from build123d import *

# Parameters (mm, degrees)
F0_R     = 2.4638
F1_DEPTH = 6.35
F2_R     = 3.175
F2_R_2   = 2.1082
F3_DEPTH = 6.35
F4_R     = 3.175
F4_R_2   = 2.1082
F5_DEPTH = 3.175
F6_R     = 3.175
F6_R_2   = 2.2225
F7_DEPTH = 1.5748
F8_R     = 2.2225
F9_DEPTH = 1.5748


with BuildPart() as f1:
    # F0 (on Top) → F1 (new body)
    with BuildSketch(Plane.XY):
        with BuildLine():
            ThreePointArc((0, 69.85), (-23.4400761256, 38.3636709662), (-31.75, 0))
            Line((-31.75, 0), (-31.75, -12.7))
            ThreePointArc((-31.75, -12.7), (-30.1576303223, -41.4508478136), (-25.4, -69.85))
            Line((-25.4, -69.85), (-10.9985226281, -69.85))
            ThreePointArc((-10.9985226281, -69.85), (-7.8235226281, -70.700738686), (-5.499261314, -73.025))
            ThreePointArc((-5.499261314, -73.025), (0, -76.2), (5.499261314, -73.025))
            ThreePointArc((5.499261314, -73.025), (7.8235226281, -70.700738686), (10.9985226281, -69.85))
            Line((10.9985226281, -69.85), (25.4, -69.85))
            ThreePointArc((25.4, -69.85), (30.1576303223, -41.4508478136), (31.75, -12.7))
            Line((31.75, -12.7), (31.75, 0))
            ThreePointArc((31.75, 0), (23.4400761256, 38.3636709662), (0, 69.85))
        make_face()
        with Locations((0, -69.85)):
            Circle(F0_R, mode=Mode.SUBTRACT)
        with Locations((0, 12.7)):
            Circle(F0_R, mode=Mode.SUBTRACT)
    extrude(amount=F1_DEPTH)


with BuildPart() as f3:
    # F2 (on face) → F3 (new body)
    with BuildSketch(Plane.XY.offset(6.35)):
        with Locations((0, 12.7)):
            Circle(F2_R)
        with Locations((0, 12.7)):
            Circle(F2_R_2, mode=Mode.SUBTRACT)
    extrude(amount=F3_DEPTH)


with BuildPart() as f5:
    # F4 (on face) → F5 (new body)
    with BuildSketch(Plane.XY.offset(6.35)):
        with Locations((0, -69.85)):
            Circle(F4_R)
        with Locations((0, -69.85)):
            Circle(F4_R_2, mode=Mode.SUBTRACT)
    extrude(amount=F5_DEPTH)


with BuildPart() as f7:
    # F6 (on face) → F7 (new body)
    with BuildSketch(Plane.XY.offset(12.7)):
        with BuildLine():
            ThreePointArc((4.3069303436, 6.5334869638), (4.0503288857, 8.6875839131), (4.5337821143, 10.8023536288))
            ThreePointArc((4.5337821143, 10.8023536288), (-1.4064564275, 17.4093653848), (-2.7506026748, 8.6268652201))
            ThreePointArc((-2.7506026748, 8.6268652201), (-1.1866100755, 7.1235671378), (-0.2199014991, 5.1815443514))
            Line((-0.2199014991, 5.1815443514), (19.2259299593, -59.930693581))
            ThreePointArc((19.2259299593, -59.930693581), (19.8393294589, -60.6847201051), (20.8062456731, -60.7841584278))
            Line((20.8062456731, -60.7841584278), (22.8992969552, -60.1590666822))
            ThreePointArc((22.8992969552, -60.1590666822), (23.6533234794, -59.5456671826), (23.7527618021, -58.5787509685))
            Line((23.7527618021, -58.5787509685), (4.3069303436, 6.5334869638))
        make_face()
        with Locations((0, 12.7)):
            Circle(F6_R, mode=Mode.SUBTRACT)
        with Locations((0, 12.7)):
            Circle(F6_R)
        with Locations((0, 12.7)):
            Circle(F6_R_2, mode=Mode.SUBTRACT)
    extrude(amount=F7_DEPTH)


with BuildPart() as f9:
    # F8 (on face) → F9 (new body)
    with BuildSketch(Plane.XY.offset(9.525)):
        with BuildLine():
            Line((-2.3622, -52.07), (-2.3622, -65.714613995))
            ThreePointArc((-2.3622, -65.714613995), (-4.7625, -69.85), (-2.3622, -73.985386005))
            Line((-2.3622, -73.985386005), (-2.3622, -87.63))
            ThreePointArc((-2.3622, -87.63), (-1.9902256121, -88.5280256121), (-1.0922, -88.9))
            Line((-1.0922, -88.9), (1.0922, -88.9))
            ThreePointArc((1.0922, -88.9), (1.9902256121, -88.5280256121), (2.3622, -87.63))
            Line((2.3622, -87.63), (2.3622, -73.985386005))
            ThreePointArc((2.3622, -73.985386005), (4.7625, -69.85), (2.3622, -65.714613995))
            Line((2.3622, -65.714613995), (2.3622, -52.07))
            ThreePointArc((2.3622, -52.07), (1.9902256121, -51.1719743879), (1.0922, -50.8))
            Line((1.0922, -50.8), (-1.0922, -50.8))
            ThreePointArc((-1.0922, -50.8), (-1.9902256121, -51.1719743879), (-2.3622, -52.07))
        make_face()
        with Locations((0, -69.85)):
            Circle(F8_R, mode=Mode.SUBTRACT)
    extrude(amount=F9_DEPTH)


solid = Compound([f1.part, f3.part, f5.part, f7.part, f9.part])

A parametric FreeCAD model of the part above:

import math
import FreeCAD as App
import Part
import Sketcher

V = App.Vector
Q = App.Units.Quantity

doc = App.newDocument("Part")
body = doc.addObject("PartDesign::Body", "Body")

sketch1 = body.newObject("Sketcher::SketchObject", "Sketch")
sketch1.AttachmentSupport = (doc.getObject("XY_Plane"), [""])
sketch1.MapMode = "FlatFace"
sketch1.addGeometry([
    Part.ArcOfCircle(Part.Circle(V(61, 0, 0), V(0, 0, 1), 92.7), math.radians(131), math.radians(180)),
    Part.LineSegment(V(-31.8, 0, 0), V(-31.8, -12.7, 0)),
    Part.ArcOfCircle(Part.Circle(V(228.6, -12.7, 0), V(0, 0, 1), 260.3), math.radians(180), math.radians(192.68)),
    Part.LineSegment(V(-25.4, -69.8, 0), V(-11, -69.8, 0)),
    Part.ArcOfCircle(Part.Circle(V(-11, -76.2, 0), V(0, 0, 1), 6.3), math.radians(30), math.radians(90)),
    Part.ArcOfCircle(Part.Circle(V(0, -69.8, 0), V(0, 0, 1), 6.3), math.radians(-150), math.radians(-30)),
    Part.ArcOfCircle(Part.Circle(V(11, -76.2, 0), V(0, 0, 1), 6.3), math.radians(90), math.radians(150)),
    Part.LineSegment(V(11, -69.8, 0), V(25.4, -69.8, 0)),
    Part.ArcOfCircle(Part.Circle(V(-228.6, -12.7, 0), V(0, 0, 1), 260.3), math.radians(-12.68), math.radians(0)),
    Part.LineSegment(V(31.8, -12.7, 0), V(31.8, 0, 0)),
    Part.ArcOfCircle(Part.Circle(V(-61, 0, 0), V(0, 0, 1), 92.7), math.radians(0), math.radians(49)),
    Part.Circle(V(0, -69.8, 0), V(0, 0, 1), 2.5),
    Part.Circle(V(0, 12.7, 0), V(0, 0, 1), 2.5),
], False)
sketch1.addConstraint([
    Sketcher.Constraint("Tangent", 0, 2, 1, 1),
    Sketcher.Constraint("Tangent", 1, 2, 2, 1),
    Sketcher.Constraint("Coincident", 2, 2, 3, 1),
    Sketcher.Constraint("Tangent", 3, 2, 4, 2),
    Sketcher.Constraint("Tangent", 4, 1, 5, 1),
    Sketcher.Constraint("Tangent", 5, 2, 6, 2),
    Sketcher.Constraint("Tangent", 6, 1, 7, 1),
    Sketcher.Constraint("Coincident", 7, 2, 8, 1),
    Sketcher.Constraint("Tangent", 8, 2, 9, 1),
    Sketcher.Constraint("Tangent", 9, 2, 10, 1),
    Sketcher.Constraint("Coincident", 10, 2, 0, 1),
    Sketcher.Constraint("Vertical", 1),
    Sketcher.Constraint("Horizontal", 3),
    Sketcher.Constraint("Horizontal", 7),
    Sketcher.Constraint("Vertical", 9),
    Sketcher.Constraint("Coincident", 11, 3, 5, 3),
    Sketcher.Constraint("Equal", 4, 5),
    Sketcher.Constraint("Equal", 5, 6),
    Sketcher.Constraint("Equal", 2, 8),
    Sketcher.Constraint("Equal", 0, 10),
    Sketcher.Constraint("Equal", 11, 12),
    Sketcher.Constraint("Symmetric", 0, 3, 10, 3, -1, 1),
    Sketcher.Constraint("Symmetric", 4, 3, 6, 3, -2),
    Sketcher.Constraint("PointOnObject", 0, 3, -1),
    Sketcher.Constraint("PointOnObject", 12, 3, -2),
    Sketcher.Constraint("Horizontal", 2, 3, 8, 3),
    Sketcher.Constraint("Horizontal", 11, 3, 2, 2),
    Sketcher.Constraint("Radius", 0, Q("3.65 in")),
    Sketcher.Constraint("Radius", 2, Q("10.25 in")),
    Sketcher.Constraint("Radius", 4, Q("0.25 in")),
    Sketcher.Constraint("Diameter", 11, Q("0.194 in")),
    Sketcher.Constraint("DistanceY", 1, 2, 1, 1, Q("0.5 in")),
    Sketcher.Constraint("DistanceX", -1, 1, 2, 3, Q("9 in")),
    Sketcher.Constraint("DistanceY", 4, 3, -1, 1, Q("3 in")),
    Sketcher.Constraint("DistanceY", 1, 2, 12, 3, Q("1 in")),
])
pad1 = body.newObject("PartDesign::Pad", "Pad")
pad1.Profile = sketch1
pad1.Length = Q("0.25 in")
body2 = doc.addObject("PartDesign::Body", "Body001")

sketch2 = body2.newObject("Sketcher::SketchObject", "Sketch001")
sketch2.AttachmentSupport = (doc.getObject("XY_Plane001"), [""])
sketch2.MapMode = "FlatFace"
sketch2.AttachmentOffset = App.Placement(V(0, 0, 0.25 * 25.4), App.Rotation())
sketch2.addGeometry([
    Part.Circle(V(0, 12.7, 0), V(0, 0, 1), 3.2),
    Part.Circle(V(0, 12.7, 0), V(0, 0, 1), 2.1),
], False)
sketch2.addConstraint([
    Sketcher.Constraint("Coincident", 1, 3, 0, 3),
    Sketcher.Constraint("PointOnObject", 0, 3, -2),
    Sketcher.Constraint("Diameter", 0, Q("0.25 in")),
    Sketcher.Constraint("Diameter", 1, Q("0.166 in")),
    Sketcher.Constraint("DistanceY", -1, 1, 0, 3, Q("0.5 in")),
])
pad2 = body2.newObject("PartDesign::Pad", "Pad001")
pad2.Profile = sketch2
pad2.Length = Q("0.25 in")
body3 = doc.addObject("PartDesign::Body", "Body002")

sketch3 = body3.newObject("Sketcher::SketchObject", "Sketch002")
sketch3.AttachmentSupport = (doc.getObject("XY_Plane002"), [""])
sketch3.MapMode = "FlatFace"
sketch3.AttachmentOffset = App.Placement(V(0, 0, 0.25 * 25.4), App.Rotation())
sketch3.addGeometry([
    Part.Circle(V(0, -69.8, 0), V(0, 0, 1), 3.2),
    Part.Circle(V(0, -69.8, 0), V(0, 0, 1), 2.1),
], False)
sketch3.addConstraint([
    Sketcher.Constraint("Coincident", 1, 3, 0, 3),
    Sketcher.Constraint("PointOnObject", 0, 3, -2),
    Sketcher.Constraint("Diameter", 0, Q("0.25 in")),
    Sketcher.Constraint("Diameter", 1, Q("0.166 in")),
    Sketcher.Constraint("DistanceY", 0, 3, -1, 1, Q("2.75 in")),
])
pad3 = body3.newObject("PartDesign::Pad", "Pad002")
pad3.Profile = sketch3
pad3.Length = Q("0.125 in")
body4 = doc.addObject("PartDesign::Body", "Body003")

sketch4 = body4.newObject("Sketcher::SketchObject", "Sketch003")
sketch4.AttachmentSupport = (doc.getObject("XY_Plane003"), [""])
sketch4.MapMode = "FlatFace"
sketch4.AttachmentOffset = App.Placement(V(0, 0, 0.5 * 25.4), App.Rotation())
sketch4.addGeometry([
    Part.ArcOfCircle(Part.Circle(V(10.4, 8.4, 0), V(0, 0, 1), 6.3), math.radians(157), math.radians(197)),
    Part.ArcOfCircle(Part.Circle(V(0, 12.7, 0), V(0, 0, 1), 4.9), math.radians(-23), math.radians(236)),
    Part.ArcOfCircle(Part.Circle(V(-6.3, 3.4, 0), V(0, 0, 1), 6.4), math.radians(17), math.radians(56)),
    Part.LineSegment(V(-0.2, 5.2, 0), V(19.2, -59.9, 0)),
    Part.ArcOfCircle(Part.Circle(V(20.4, -59.6, 0), V(0, 0, 1), 1.3), math.radians(-163), math.radians(-73)),
    Part.LineSegment(V(20.8, -60.8, 0), V(22.9, -60.2, 0)),
    Part.ArcOfCircle(Part.Circle(V(22.5, -58.9, 0), V(0, 0, 1), 1.3), math.radians(-73), math.radians(17)),
    Part.LineSegment(V(23.8, -58.6, 0), V(4.3, 6.5, 0)),
    Part.Circle(V(0, 12.7, 0), V(0, 0, 1), 2.2),
], False)
sketch4.addConstraint([
    Sketcher.Constraint("Tangent", 0, 1, 1, 1),
    Sketcher.Constraint("Tangent", 1, 2, 2, 2),
    Sketcher.Constraint("Tangent", 2, 1, 3, 1),
    Sketcher.Constraint("Tangent", 3, 2, 4, 1),
    Sketcher.Constraint("Tangent", 4, 2, 5, 1),
    Sketcher.Constraint("Tangent", 5, 2, 6, 1),
    Sketcher.Constraint("Tangent", 6, 2, 7, 1),
    Sketcher.Constraint("Tangent", 7, 2, 0, 2),
    Sketcher.Constraint("Coincident", 8, 3, 1, 3),
    Sketcher.Constraint("Equal", 0, 2),
    Sketcher.Constraint("Equal", 4, 6),
    Sketcher.Constraint("PointOnObject", 1, 3, -2),
    Sketcher.Constraint("Perpendicular", 3, 5),
    Sketcher.Constraint("Perpendicular", 5, 7),
    Sketcher.Constraint("Equal", 3, 7),
    Sketcher.Constraint("Radius", 0, Q("0.25 in")),
    Sketcher.Constraint("Radius", 4, Q("0.05 in")),
    Sketcher.Constraint("Diameter", 8, Q("0.175 in")),
    Sketcher.Constraint("DistanceY", -1, 1, 1, 3, Q("0.5 in")),
    Sketcher.Constraint("Radius", 1, Q("0.1935 in")),
    Sketcher.Constraint("Distance", 5, Q("0.086 in")),
    Sketcher.Constraint("DistanceX", 2, 1, -1, 1, 0.219901),
    Sketcher.Constraint("DistanceX", 2, 3, 4, 2, 27.110599),
])
pad4 = body4.newObject("PartDesign::Pad", "Pad003")
pad4.Profile = sketch4
pad4.Length = Q("0.062 in")
body5 = doc.addObject("PartDesign::Body", "Body004")

sketch5 = body5.newObject("Sketcher::SketchObject", "Sketch004")
sketch5.AttachmentSupport = (doc.getObject("XY_Plane004"), [""])
sketch5.MapMode = "FlatFace"
sketch5.AttachmentOffset = App.Placement(V(0, 0, 0.375 * 25.4), App.Rotation())
sketch5.addGeometry([
    Part.LineSegment(V(-2.4, -52.1, 0), V(-2.4, -65.7, 0)),
    Part.ArcOfCircle(Part.Circle(V(0, -69.8, 0), V(0, 0, 1), 4.8), math.radians(120), math.radians(240)),
    Part.LineSegment(V(-2.4, -74, 0), V(-2.4, -87.6, 0)),
    Part.ArcOfCircle(Part.Circle(V(-1.1, -87.6, 0), V(0, 0, 1), 1.3), math.radians(180), math.radians(270)),
    Part.LineSegment(V(-1.1, -88.9, 0), V(1.1, -88.9, 0)),
    Part.ArcOfCircle(Part.Circle(V(1.1, -87.6, 0), V(0, 0, 1), 1.3), math.radians(-90), math.radians(0)),
    Part.LineSegment(V(2.4, -87.6, 0), V(2.4, -74, 0)),
    Part.ArcOfCircle(Part.Circle(V(0, -69.8, 0), V(0, 0, 1), 4.8), math.radians(-60), math.radians(60)),
    Part.LineSegment(V(2.4, -65.7, 0), V(2.4, -52.1, 0)),
    Part.ArcOfCircle(Part.Circle(V(1.1, -52.1, 0), V(0, 0, 1), 1.3), math.radians(0), math.radians(90)),
    Part.LineSegment(V(1.1, -50.8, 0), V(-1.1, -50.8, 0)),
    Part.ArcOfCircle(Part.Circle(V(-1.1, -52.1, 0), V(0, 0, 1), 1.3), math.radians(90), math.radians(180)),
    Part.Circle(V(0, -69.8, 0), V(0, 0, 1), 2.2),
], False)
sketch5.addConstraint([
    Sketcher.Constraint("Coincident", 0, 2, 1, 1),
    Sketcher.Constraint("Coincident", 1, 2, 2, 1),
    Sketcher.Constraint("Tangent", 2, 2, 3, 1),
    Sketcher.Constraint("Tangent", 3, 2, 4, 1),
    Sketcher.Constraint("Tangent", 4, 2, 5, 1),
    Sketcher.Constraint("Tangent", 5, 2, 6, 1),
    Sketcher.Constraint("Coincident", 6, 2, 7, 1),
    Sketcher.Constraint("Coincident", 7, 2, 8, 1),
    Sketcher.Constraint("Tangent", 8, 2, 9, 1),
    Sketcher.Constraint("Tangent", 9, 2, 10, 1),
    Sketcher.Constraint("Tangent", 10, 2, 11, 1),
    Sketcher.Constraint("Tangent", 11, 2, 0, 1),
    Sketcher.Constraint("Vertical", 0),
    Sketcher.Constraint("Vertical", 2),
    Sketcher.Constraint("Horizontal", 4),
    Sketcher.Constraint("Vertical", 6),
    Sketcher.Constraint("Vertical", 8),
    Sketcher.Constraint("Horizontal", 10),
    Sketcher.Constraint("Coincident", 7, 3, 1, 3),
    Sketcher.Constraint("Coincident", 12, 3, 1, 3),
    Sketcher.Constraint("Equal", 3, 5),
    Sketcher.Constraint("Equal", 1, 7),
    Sketcher.Constraint("Equal", 5, 9),
    Sketcher.Constraint("Equal", 9, 11),
    Sketcher.Constraint("Symmetric", 1, 2, 6, 2, -2),
    Sketcher.Constraint("Horizontal", 0, 2, 7, 2),
    Sketcher.Constraint("Vertical", 5, 3, 9, 3),
    Sketcher.Constraint("Equal", 0, 2),
    Sketcher.Constraint("Radius", 3, Q("0.05 in")),
    Sketcher.Constraint("Diameter", 12, Q("0.175 in")),
    Sketcher.Constraint("DistanceY", 9, 2, -1, 1, Q("2 in")),
    Sketcher.Constraint("Radius", 1, Q("0.1875 in")),
    Sketcher.Constraint("DistanceY", 3, 2, -1, 1, Q("3.5 in")),
    Sketcher.Constraint("DistanceX", 4, 1, 4, 2, Q("0.086 in")),
])
pad5 = body5.newObject("PartDesign::Pad", "Pad004")
pad5.Profile = sketch5
pad5.Length = Q("0.062 in")

doc.recompute()
